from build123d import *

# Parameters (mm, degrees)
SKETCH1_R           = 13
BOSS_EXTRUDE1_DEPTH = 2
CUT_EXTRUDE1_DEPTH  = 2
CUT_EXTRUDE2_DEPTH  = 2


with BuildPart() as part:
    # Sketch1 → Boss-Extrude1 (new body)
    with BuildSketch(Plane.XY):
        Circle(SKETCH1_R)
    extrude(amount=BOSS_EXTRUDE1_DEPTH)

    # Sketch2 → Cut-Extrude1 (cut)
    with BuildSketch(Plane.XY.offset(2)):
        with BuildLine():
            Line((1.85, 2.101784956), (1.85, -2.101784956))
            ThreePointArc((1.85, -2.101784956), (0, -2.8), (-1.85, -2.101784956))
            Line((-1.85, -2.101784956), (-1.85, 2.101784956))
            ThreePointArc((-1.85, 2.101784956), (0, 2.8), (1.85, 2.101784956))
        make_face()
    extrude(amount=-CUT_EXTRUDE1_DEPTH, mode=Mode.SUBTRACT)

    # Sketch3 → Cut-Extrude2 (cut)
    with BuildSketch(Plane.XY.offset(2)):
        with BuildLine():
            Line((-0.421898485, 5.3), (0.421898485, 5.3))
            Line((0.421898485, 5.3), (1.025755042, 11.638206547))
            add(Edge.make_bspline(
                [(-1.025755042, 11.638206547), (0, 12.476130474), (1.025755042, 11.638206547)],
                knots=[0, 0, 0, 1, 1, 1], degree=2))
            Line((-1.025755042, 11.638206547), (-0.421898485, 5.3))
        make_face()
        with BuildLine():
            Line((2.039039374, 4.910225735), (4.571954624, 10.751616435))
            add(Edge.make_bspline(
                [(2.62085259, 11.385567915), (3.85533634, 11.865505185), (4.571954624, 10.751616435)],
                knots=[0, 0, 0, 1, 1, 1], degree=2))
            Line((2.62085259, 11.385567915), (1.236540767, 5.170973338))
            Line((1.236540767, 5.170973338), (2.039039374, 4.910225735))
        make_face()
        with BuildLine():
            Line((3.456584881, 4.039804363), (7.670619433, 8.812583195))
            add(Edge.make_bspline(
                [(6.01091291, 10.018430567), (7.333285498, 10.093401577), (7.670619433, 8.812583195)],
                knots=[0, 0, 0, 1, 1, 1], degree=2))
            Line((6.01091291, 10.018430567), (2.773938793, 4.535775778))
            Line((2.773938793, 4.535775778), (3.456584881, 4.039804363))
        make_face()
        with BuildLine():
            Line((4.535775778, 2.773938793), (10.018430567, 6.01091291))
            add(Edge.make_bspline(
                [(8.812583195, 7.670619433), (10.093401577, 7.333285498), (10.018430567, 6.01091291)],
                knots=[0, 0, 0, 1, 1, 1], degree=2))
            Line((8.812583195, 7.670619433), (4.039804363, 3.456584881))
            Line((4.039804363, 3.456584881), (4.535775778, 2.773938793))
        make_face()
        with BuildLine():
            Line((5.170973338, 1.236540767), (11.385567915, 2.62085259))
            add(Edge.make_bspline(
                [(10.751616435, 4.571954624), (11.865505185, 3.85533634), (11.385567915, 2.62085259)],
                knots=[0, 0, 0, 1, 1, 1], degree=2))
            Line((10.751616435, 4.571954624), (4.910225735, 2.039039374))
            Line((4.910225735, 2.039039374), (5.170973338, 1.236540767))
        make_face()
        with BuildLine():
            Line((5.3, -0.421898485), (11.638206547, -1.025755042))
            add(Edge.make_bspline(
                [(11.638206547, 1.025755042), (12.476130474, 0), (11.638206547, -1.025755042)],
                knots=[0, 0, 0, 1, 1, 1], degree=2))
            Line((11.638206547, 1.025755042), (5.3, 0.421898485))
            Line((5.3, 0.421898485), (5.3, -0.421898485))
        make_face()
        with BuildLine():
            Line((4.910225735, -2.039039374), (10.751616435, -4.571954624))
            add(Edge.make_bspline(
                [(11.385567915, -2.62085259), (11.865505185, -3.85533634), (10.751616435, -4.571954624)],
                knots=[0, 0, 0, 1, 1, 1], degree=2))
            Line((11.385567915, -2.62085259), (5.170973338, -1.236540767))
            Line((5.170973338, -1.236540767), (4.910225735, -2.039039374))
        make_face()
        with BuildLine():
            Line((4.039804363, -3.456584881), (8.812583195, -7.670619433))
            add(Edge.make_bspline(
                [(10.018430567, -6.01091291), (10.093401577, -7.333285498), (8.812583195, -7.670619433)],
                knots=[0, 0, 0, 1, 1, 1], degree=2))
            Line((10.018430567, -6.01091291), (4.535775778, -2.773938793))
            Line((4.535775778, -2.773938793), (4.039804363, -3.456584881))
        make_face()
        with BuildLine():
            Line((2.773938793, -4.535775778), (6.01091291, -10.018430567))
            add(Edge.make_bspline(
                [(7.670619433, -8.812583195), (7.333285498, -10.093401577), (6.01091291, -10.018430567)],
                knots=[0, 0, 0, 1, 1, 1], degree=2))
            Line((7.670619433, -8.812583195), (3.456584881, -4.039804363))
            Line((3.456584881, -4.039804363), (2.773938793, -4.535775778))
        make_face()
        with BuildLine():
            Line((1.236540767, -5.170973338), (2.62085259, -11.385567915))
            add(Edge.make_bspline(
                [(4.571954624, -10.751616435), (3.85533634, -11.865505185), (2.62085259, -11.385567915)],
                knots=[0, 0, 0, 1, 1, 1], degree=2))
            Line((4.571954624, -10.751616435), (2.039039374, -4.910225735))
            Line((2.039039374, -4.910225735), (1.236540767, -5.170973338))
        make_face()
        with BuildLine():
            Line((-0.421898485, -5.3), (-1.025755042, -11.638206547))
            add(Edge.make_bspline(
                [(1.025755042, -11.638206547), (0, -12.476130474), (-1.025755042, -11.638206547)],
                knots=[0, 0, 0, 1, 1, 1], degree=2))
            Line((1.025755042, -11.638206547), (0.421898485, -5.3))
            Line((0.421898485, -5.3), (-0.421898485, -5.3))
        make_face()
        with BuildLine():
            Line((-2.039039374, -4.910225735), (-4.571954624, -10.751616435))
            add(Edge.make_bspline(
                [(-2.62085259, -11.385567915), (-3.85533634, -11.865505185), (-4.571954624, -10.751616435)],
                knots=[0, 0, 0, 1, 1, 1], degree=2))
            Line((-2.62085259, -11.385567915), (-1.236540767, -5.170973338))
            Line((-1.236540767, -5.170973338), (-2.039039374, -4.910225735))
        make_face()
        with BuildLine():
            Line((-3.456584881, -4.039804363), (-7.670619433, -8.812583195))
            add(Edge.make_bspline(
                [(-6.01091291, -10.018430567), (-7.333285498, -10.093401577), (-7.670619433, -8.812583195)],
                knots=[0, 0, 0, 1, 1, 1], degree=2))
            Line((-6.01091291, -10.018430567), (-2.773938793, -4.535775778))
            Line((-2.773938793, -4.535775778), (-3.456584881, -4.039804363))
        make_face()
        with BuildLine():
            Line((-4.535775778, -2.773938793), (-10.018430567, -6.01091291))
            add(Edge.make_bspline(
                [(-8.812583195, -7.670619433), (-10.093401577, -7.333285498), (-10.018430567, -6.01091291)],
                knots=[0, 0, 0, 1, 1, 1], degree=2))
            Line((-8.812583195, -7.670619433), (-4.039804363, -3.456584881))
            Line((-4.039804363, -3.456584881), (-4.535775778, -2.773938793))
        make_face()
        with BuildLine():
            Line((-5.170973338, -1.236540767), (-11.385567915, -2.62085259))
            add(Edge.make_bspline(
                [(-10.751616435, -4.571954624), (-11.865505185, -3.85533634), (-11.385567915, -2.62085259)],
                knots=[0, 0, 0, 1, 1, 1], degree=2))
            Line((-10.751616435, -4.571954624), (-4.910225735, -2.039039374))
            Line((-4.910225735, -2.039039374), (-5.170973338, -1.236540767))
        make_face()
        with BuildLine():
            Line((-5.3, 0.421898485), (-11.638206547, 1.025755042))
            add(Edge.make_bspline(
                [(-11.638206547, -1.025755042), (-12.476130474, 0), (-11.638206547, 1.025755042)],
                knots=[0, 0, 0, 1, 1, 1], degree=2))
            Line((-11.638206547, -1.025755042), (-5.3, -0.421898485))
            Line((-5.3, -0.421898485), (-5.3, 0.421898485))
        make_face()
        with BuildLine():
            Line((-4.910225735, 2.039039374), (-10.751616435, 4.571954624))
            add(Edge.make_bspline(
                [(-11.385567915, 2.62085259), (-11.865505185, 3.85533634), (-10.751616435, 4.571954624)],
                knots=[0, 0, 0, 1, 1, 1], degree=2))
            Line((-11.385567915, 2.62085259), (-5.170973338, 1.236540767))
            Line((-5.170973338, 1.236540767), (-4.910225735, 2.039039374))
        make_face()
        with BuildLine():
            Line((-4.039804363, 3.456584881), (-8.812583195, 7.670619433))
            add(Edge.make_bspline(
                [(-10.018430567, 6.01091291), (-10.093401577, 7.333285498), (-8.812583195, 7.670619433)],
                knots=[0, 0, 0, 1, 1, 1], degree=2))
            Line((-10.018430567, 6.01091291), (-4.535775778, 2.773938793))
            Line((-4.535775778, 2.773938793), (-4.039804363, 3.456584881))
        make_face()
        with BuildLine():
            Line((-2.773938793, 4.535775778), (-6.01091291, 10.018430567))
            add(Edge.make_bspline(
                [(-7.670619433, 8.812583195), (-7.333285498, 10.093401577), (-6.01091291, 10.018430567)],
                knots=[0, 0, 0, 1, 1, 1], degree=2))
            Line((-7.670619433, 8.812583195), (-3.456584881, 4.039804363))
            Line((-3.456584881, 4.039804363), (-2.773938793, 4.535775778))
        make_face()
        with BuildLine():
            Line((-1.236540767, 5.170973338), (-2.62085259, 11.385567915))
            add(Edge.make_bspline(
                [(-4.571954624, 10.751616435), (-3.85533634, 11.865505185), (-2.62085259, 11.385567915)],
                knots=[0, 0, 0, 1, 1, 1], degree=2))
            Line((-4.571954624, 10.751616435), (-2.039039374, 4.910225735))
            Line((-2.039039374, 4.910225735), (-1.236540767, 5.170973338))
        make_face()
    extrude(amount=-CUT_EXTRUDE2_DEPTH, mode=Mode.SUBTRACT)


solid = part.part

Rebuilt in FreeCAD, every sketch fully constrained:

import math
import FreeCAD as App
import Part
import Sketcher
from FreeCAD import Vector

doc = App.newDocument("Part")
body = doc.addObject("PartDesign::Body", "Body")

sketch1 = body.newObject("Sketcher::SketchObject", "Sketch")
sketch1.AttachmentSupport = (doc.getObject("XY_Plane"), [""])
sketch1.MapMode = "FlatFace"
sketch1.addGeometry(Part.Circle(Vector(0, 0, 0), Vector(0, 0, 1), 13), False)
sketch1.addConstraint(Sketcher.Constraint("Coincident", 0, 3, -1, 1))
sketch1.addConstraint(Sketcher.Constraint("Diameter", 0, 26.0))
pad1 = body.newObject("PartDesign::Pad", "Pad")
pad1.Profile = sketch1
pad1.Length = 2

sketch2 = body.newObject("Sketcher::SketchObject", "Sketch001")
sketch2.AttachmentSupport = (doc.getObject("XY_Plane"), [""])
sketch2.MapMode = "FlatFace"
sketch2.AttachmentOffset = App.Placement(Vector(0, 0, 2), App.Rotation())
sketch2.addGeometry(Part.LineSegment(Vector(1.85, -2.101785, 0), Vector(1.85, 2.101785, 0)), False)
sketch2.addGeometry(Part.ArcOfCircle(Part.Circle(Vector(0, 0, 0), Vector(0, 0, 1), 2.8), math.radians(48.645629), math.radians(131.354371)), False)
sketch2.addGeometry(Part.LineSegment(Vector(-1.85, 2.101785, 0), Vector(-1.85, -2.101785, 0)), False)
sketch2.addGeometry(Part.ArcOfCircle(Part.Circle(Vector(0, 0, 0), Vector(0, 0, 1), 2.8), math.radians(-131.354371), math.radians(-48.645629)), False)
sketch2.addConstraint(Sketcher.Constraint("Coincident", 0, 2, 1, 1))
sketch2.addConstraint(Sketcher.Constraint("Coincident", 1, 2, 2, 1))
sketch2.addConstraint(Sketcher.Constraint("Coincident", 2, 2, 3, 1))
sketch2.addConstraint(Sketcher.Constraint("Coincident", 3, 2, 0, 1))
sketch2.addConstraint(Sketcher.Constraint("Vertical", 0))
sketch2.addConstraint(Sketcher.Constraint("Vertical", 2))
sketch2.addConstraint(Sketcher.Constraint("Coincident", 1, 3, -1, 1))
sketch2.addConstraint(Sketcher.Constraint("Coincident", 3, 3, -1, 1))
sketch2.addConstraint(Sketcher.Constraint("Equal", 1, 3))
sketch2.addConstraint(Sketcher.Constraint("Horizontal", 0, 2, 1, 2))
sketch2.addConstraint(Sketcher.Constraint("Radius", 1, 2.8))
sketch2.addConstraint(Sketcher.Constraint("DistanceX", 1, 2, 0, 2, 3.7))
pocket1 = body.newObject("PartDesign::Pocket", "Pocket")
pocket1.Profile = sketch2
pocket1.Length = 2

sketch3 = body.newObject("Sketcher::SketchObject", "Sketch002")
sketch3.AttachmentSupport = (doc.getObject("XY_Plane"), [""])
sketch3.MapMode = "FlatFace"
sketch3.AttachmentOffset = App.Placement(Vector(0, 0, 2), App.Rotation())
sketch3.addGeometry(Part.LineSegment(Vector(-0.421898, 5.3, 0), Vector(0.421898, 5.3, 0)), False)
sketch3.addGeometry(Part.LineSegment(Vector(0.421898, 5.3, 0), Vector(1.025755, 11.638207, 0)), False)
sketch3.addGeometry(Part.BSplineCurve([Vector(-1.025755, 11.638207, 0), Vector(0, 12.47613, 0), Vector(1.025755, 11.638207, 0)], [3, 3], [0, 1], False, 2, [1, 1, 1], False), False)
sketch3.addGeometry(Part.LineSegment(Vector(-1.025755, 11.638207, 0), Vector(-0.421898, 5.3, 0)), False)
sketch3.addGeometry(Part.LineSegment(Vector(2.039039, 4.910226, 0), Vector(4.571955, 10.751616, 0)), False)
sketch3.addGeometry(Part.BSplineCurve([Vector(2.620853, 11.385568, 0), Vector(3.855336, 11.865505, 0), Vector(4.571955, 10.751616, 0)], [3, 3], [0, 1], False, 2, [1, 1, 1], False), False)
sketch3.addGeometry(Part.LineSegment(Vector(2.620853, 11.385568, 0), Vector(1.236541, 5.170973, 0)), False)
sketch3.addGeometry(Part.LineSegment(Vector(1.236541, 5.170973, 0), Vector(2.039039, 4.910226, 0)), False)
sketch3.addGeometry(Part.LineSegment(Vector(3.456585, 4.039804, 0), Vector(7.670619, 8.812583, 0)), False)
sketch3.addGeometry(Part.BSplineCurve([Vector(6.010913, 10.018431, 0), Vector(7.333285, 10.093402, 0), Vector(7.670619, 8.812583, 0)], [3, 3], [0, 1], False, 2, [1, 1, 1], False), False)
sketch3.addGeometry(Part.LineSegment(Vector(6.010913, 10.018431, 0), Vector(2.773939, 4.535776, 0)), False)
sketch3.addGeometry(Part.LineSegment(Vector(2.773939, 4.535776, 0), Vector(3.456585, 4.039804, 0)), False)
sketch3.addGeometry(Part.LineSegment(Vector(4.535776, 2.773939, 0), Vector(10.018431, 6.010913, 0)), False)
sketch3.addGeometry(Part.BSplineCurve([Vector(8.812583, 7.670619, 0), Vector(10.093402, 7.333285, 0), Vector(10.018431, 6.010913, 0)], [3, 3], [0, 1], False, 2, [1, 1, 1], False), False)
sketch3.addGeometry(Part.LineSegment(Vector(8.812583, 7.670619, 0), Vector(4.039804, 3.456585, 0)), False)
sketch3.addGeometry(Part.LineSegment(Vector(4.039804, 3.456585, 0), Vector(4.535776, 2.773939, 0)), False)
sketch3.addGeometry(Part.LineSegment(Vector(5.170973, 1.236541, 0), Vector(11.385568, 2.620853, 0)), False)
sketch3.addGeometry(Part.BSplineCurve([Vector(10.751616, 4.571955, 0), Vector(11.865505, 3.855336, 0), Vector(11.385568, 2.620853, 0)], [3, 3], [0, 1], False, 2, [1, 1, 1], False), False)
sketch3.addGeometry(Part.LineSegment(Vector(10.751616, 4.571955, 0), Vector(4.910226, 2.039039, 0)), False)
sketch3.addGeometry(Part.LineSegment(Vector(4.910226, 2.039039, 0), Vector(5.170973, 1.236541, 0)), False)
sketch3.addGeometry(Part.LineSegment(Vector(5.3, -0.421898, 0), Vector(11.638207, -1.025755, 0)), False)
sketch3.addGeometry(Part.BSplineCurve([Vector(11.638207, 1.025755, 0), Vector(12.47613, 0, 0), Vector(11.638207, -1.025755, 0)], [3, 3], [0, 1], False, 2, [1, 1, 1], False), False)
sketch3.addGeometry(Part.LineSegment(Vector(11.638207, 1.025755, 0), Vector(5.3, 0.421898, 0)), False)
sketch3.addGeometry(Part.LineSegment(Vector(5.3, 0.421898, 0), Vector(5.3, -0.421898, 0)), False)
sketch3.addGeometry(Part.LineSegment(Vector(4.910226, -2.039039, 0), Vector(10.751616, -4.571955, 0)), False)
sketch3.addGeometry(Part.BSplineCurve([Vector(11.385568, -2.620853, 0), Vector(11.865505, -3.855336, 0), Vector(10.751616, -4.571955, 0)], [3, 3], [0, 1], False, 2, [1, 1, 1], False), False)
sketch3.addGeometry(Part.LineSegment(Vector(11.385568, -2.620853, 0), Vector(5.170973, -1.236541, 0)), False)
sketch3.addGeometry(Part.LineSegment(Vector(5.170973, -1.236541, 0), Vector(4.910226, -2.039039, 0)), False)
sketch3.addGeometry(Part.LineSegment(Vector(4.039804, -3.456585, 0), Vector(8.812583, -7.670619, 0)), False)
sketch3.addGeometry(Part.BSplineCurve([Vector(10.018431, -6.010913, 0), Vector(10.093402, -7.333285, 0), Vector(8.812583, -7.670619, 0)], [3, 3], [0, 1], False, 2, [1, 1, 1], False), False)
sketch3.addGeometry(Part.LineSegment(Vector(10.018431, -6.010913, 0), Vector(4.535776, -2.773939, 0)), False)
sketch3.addGeometry(Part.LineSegment(Vector(4.535776, -2.773939, 0), Vector(4.039804, -3.456585, 0)), False)
sketch3.addGeometry(Part.LineSegment(Vector(2.773939, -4.535776, 0), Vector(6.010913, -10.018431, 0)), False)
sketch3.addGeometry(Part.BSplineCurve([Vector(7.670619, -8.812583, 0), Vector(7.333285, -10.093402, 0), Vector(6.010913, -10.018431, 0)], [3, 3], [0, 1], False, 2, [1, 1, 1], False), False)
sketch3.addGeometry(Part.LineSegment(Vector(7.670619, -8.812583, 0), Vector(3.456585, -4.039804, 0)), False)
sketch3.addGeometry(Part.LineSegment(Vector(3.456585, -4.039804, 0), Vector(2.773939, -4.535776, 0)), False)
sketch3.addGeometry(Part.LineSegment(Vector(1.236541, -5.170973, 0), Vector(2.620853, -11.385568, 0)), False)
sketch3.addGeometry(Part.BSplineCurve([Vector(4.571955, -10.751616, 0), Vector(3.855336, -11.865505, 0), Vector(2.620853, -11.385568, 0)], [3, 3], [0, 1], False, 2, [1, 1, 1], False), False)
sketch3.addGeometry(Part.LineSegment(Vector(4.571955, -10.751616, 0), Vector(2.039039, -4.910226, 0)), False)
sketch3.addGeometry(Part.LineSegment(Vector(2.039039, -4.910226, 0), Vector(1.236541, -5.170973, 0)), False)
sketch3.addGeometry(Part.LineSegment(Vector(-0.421898, -5.3, 0), Vector(-1.025755, -11.638207, 0)), False)
sketch3.addGeometry(Part.BSplineCurve([Vector(1.025755, -11.638207, 0), Vector(0, -12.47613, 0), Vector(-1.025755, -11.638207, 0)], [3, 3], [0, 1], False, 2, [1, 1, 1], False), False)
sketch3.addGeometry(Part.LineSegment(Vector(1.025755, -11.638207, 0), Vector(0.421898, -5.3, 0)), False)
sketch3.addGeometry(Part.LineSegment(Vector(0.421898, -5.3, 0), Vector(-0.421898, -5.3, 0)), False)
sketch3.addGeometry(Part.LineSegment(Vector(-2.039039, -4.910226, 0), Vector(-4.571955, -10.751616, 0)), False)
sketch3.addGeometry(Part.BSplineCurve([Vector(-2.620853, -11.385568, 0), Vector(-3.855336, -11.865505, 0), Vector(-4.571955, -10.751616, 0)], [3, 3], [0, 1], False, 2, [1, 1, 1], False), False)
sketch3.addGeometry(Part.LineSegment(Vector(-2.620853, -11.385568, 0), Vector(-1.236541, -5.170973, 0)), False)
sketch3.addGeometry(Part.LineSegment(Vector(-1.236541, -5.170973, 0), Vector(-2.039039, -4.910226, 0)), False)
sketch3.addGeometry(Part.LineSegment(Vector(-3.456585, -4.039804, 0), Vector(-7.670619, -8.812583, 0)), False)
sketch3.addGeometry(Part.BSplineCurve([Vector(-6.010913, -10.018431, 0), Vector(-7.333285, -10.093402, 0), Vector(-7.670619, -8.812583, 0)], [3, 3], [0, 1], False, 2, [1, 1, 1], False), False)
sketch3.addGeometry(Part.LineSegment(Vector(-6.010913, -10.018431, 0), Vector(-2.773939, -4.535776, 0)), False)
sketch3.addGeometry(Part.LineSegment(Vector(-2.773939, -4.535776, 0), Vector(-3.456585, -4.039804, 0)), False)
sketch3.addGeometry(Part.LineSegment(Vector(-4.535776, -2.773939, 0), Vector(-10.018431, -6.010913, 0)), False)
sketch3.addGeometry(Part.BSplineCurve([Vector(-8.812583, -7.670619, 0), Vector(-10.093402, -7.333285, 0), Vector(-10.018431, -6.010913, 0)], [3, 3], [0, 1], False, 2, [1, 1, 1], False), False)
sketch3.addGeometry(Part.LineSegment(Vector(-8.812583, -7.670619, 0), Vector(-4.039804, -3.456585, 0)), False)
sketch3.addGeometry(Part.LineSegment(Vector(-4.039804, -3.456585, 0), Vector(-4.535776, -2.773939, 0)), False)
sketch3.addGeometry(Part.LineSegment(Vector(-5.170973, -1.236541, 0), Vector(-11.385568, -2.620853, 0)), False)
sketch3.addGeometry(Part.BSplineCurve([Vector(-10.751616, -4.571955, 0), Vector(-11.865505, -3.855336, 0), Vector(-11.385568, -2.620853, 0)], [3, 3], [0, 1], False, 2, [1, 1, 1], False), False)
sketch3.addGeometry(Part.LineSegment(Vector(-10.751616, -4.571955, 0), Vector(-4.910226, -2.039039, 0)), False)
sketch3.addGeometry(Part.LineSegment(Vector(-4.910226, -2.039039, 0), Vector(-5.170973, -1.236541, 0)), False)
sketch3.addGeometry(Part.LineSegment(Vector(-5.3, 0.421898, 0), Vector(-11.638207, 1.025755, 0)), False)
sketch3.addGeometry(Part.BSplineCurve([Vector(-11.638207, -1.025755, 0), Vector(-12.47613, 0, 0), Vector(-11.638207, 1.025755, 0)], [3, 3], [0, 1], False, 2, [1, 1, 1], False), False)
sketch3.addGeometry(Part.LineSegment(Vector(-11.638207, -1.025755, 0), Vector(-5.3, -0.421898, 0)), False)
sketch3.addGeometry(Part.LineSegment(Vector(-5.3, -0.421898, 0), Vector(-5.3, 0.421898, 0)), False)
sketch3.addGeometry(Part.LineSegment(Vector(-4.910226, 2.039039, 0), Vector(-10.751616, 4.571955, 0)), False)
sketch3.addGeometry(Part.BSplineCurve([Vector(-11.385568, 2.620853, 0), Vector(-11.865505, 3.855336, 0), Vector(-10.751616, 4.571955, 0)], [3, 3], [0, 1], False, 2, [1, 1, 1], False), False)
sketch3.addGeometry(Part.LineSegment(Vector(-11.385568, 2.620853, 0), Vector(-5.170973, 1.236541, 0)), False)
sketch3.addGeometry(Part.LineSegment(Vector(-5.170973, 1.236541, 0), Vector(-4.910226, 2.039039, 0)), False)
sketch3.addGeometry(Part.LineSegment(Vector(-4.039804, 3.456585, 0), Vector(-8.812583, 7.670619, 0)), False)
sketch3.addGeometry(Part.BSplineCurve([Vector(-10.018431, 6.010913, 0), Vector(-10.093402, 7.333285, 0), Vector(-8.812583, 7.670619, 0)], [3, 3], [0, 1], False, 2, [1, 1, 1], False), False)
sketch3.addGeometry(Part.LineSegment(Vector(-10.018431, 6.010913, 0), Vector(-4.535776, 2.773939, 0)), False)
sketch3.addGeometry(Part.LineSegment(Vector(-4.535776, 2.773939, 0), Vector(-4.039804, 3.456585, 0)), False)
sketch3.addGeometry(Part.LineSegment(Vector(-2.773939, 4.535776, 0), Vector(-6.010913, 10.018431, 0)), False)
sketch3.addGeometry(Part.BSplineCurve([Vector(-7.670619, 8.812583, 0), Vector(-7.333285, 10.093402, 0), Vector(-6.010913, 10.018431, 0)], [3, 3], [0, 1], False, 2, [1, 1, 1], False), False)
sketch3.addGeometry(Part.LineSegment(Vector(-7.670619, 8.812583, 0), Vector(-3.456585, 4.039804, 0)), False)
sketch3.addGeometry(Part.LineSegment(Vector(-3.456585, 4.039804, 0), Vector(-2.773939, 4.535776, 0)), False)
sketch3.addGeometry(Part.LineSegment(Vector(-1.236541, 5.170973, 0), Vector(-2.620853, 11.385568, 0)), False)
sketch3.addGeometry(Part.BSplineCurve([Vector(-4.571955, 10.751616, 0), Vector(-3.855336, 11.865505, 0), Vector(-2.620853, 11.385568, 0)], [3, 3], [0, 1], False, 2, [1, 1, 1], False), False)
sketch3.addGeometry(Part.LineSegment(Vector(-4.571955, 10.751616, 0), Vector(-2.039039, 4.910226, 0)), False)
sketch3.addGeometry(Part.LineSegment(Vector(-2.039039, 4.910226, 0), Vector(-1.236541, 5.170973, 0)), False)
sketch3.addConstraint(Sketcher.Constraint("Block", 2))
sketch3.addConstraint(Sketcher.Constraint("Block", 5))
sketch3.addConstraint(Sketcher.Constraint("Block", 9))
sketch3.addConstraint(Sketcher.Constraint("Block", 13))
sketch3.addConstraint(Sketcher.Constraint("Block", 17))
sketch3.addConstraint(Sketcher.Constraint("Block", 21))
sketch3.addConstraint(Sketcher.Constraint("Block", 25))
sketch3.addConstraint(Sketcher.Constraint("Block", 29))
sketch3.addConstraint(Sketcher.Constraint("Block", 33))
sketch3.addConstraint(Sketcher.Constraint("Block", 37))
sketch3.addConstraint(Sketcher.Constraint("Block", 41))
sketch3.addConstraint(Sketcher.Constraint("Block", 45))
sketch3.addConstraint(Sketcher.Constraint("Block", 49))
sketch3.addConstraint(Sketcher.Constraint("Block", 53))
sketch3.addConstraint(Sketcher.Constraint("Block", 57))
sketch3.addConstraint(Sketcher.Constraint("Block", 61))
sketch3.addConstraint(Sketcher.Constraint("Block", 65))
sketch3.addConstraint(Sketcher.Constraint("Block", 69))
sketch3.addConstraint(Sketcher.Constraint("Block", 73))
sketch3.addConstraint(Sketcher.Constraint("Block", 77))
sketch3.addConstraint(Sketcher.Constraint("Coincident", 0, 2, 1, 1))
sketch3.addConstraint(Sketcher.Constraint("Coincident", 1, 2, 2, 2))
sketch3.addConstraint(Sketcher.Constraint("Coincident", 2, 1, 3, 1))
sketch3.addConstraint(Sketcher.Constraint("Coincident", 3, 2, 0, 1))
sketch3.addConstraint(Sketcher.Constraint("Coincident", 4, 2, 5, 2))
sketch3.addConstraint(Sketcher.Constraint("Coincident", 5, 1, 6, 1))
sketch3.addConstraint(Sketcher.Constraint("Coincident", 6, 2, 7, 1))
sketch3.addConstraint(Sketcher.Constraint("Coincident", 7, 2, 4, 1))
sketch3.addConstraint(Sketcher.Constraint("Coincident", 8, 2, 9, 2))
sketch3.addConstraint(Sketcher.Constraint("Coincident", 9, 1, 10, 1))
sketch3.addConstraint(Sketcher.Constraint("Coincident", 10, 2, 11, 1))
sketch3.addConstraint(Sketcher.Constraint("Coincident", 11, 2, 8, 1))
sketch3.addConstraint(Sketcher.Constraint("Coincident", 12, 2, 13, 2))
sketch3.addConstraint(Sketcher.Constraint("Coincident", 13, 1, 14, 1))
sketch3.addConstraint(Sketcher.Constraint("Coincident", 14, 2, 15, 1))
sketch3.addConstraint(Sketcher.Constraint("Coincident", 15, 2, 12, 1))
sketch3.addConstraint(Sketcher.Constraint("Coincident", 16, 2, 17, 2))
sketch3.addConstraint(Sketcher.Constraint("Coincident", 17, 1, 18, 1))
sketch3.addConstraint(Sketcher.Constraint("Coincident", 18, 2, 19, 1))
sketch3.addConstraint(Sketcher.Constraint("Coincident", 19, 2, 16, 1))
sketch3.addConstraint(Sketcher.Constraint("Coincident", 20, 2, 21, 2))
sketch3.addConstraint(Sketcher.Constraint("Coincident", 21, 1, 22, 1))
sketch3.addConstraint(Sketcher.Constraint("Coincident", 22, 2, 23, 1))
sketch3.addConstraint(Sketcher.Constraint("Coincident", 23, 2, 20, 1))
sketch3.addConstraint(Sketcher.Constraint("Coincident", 24, 2, 25, 2))
sketch3.addConstraint(Sketcher.Constraint("Coincident", 25, 1, 26, 1))
sketch3.addConstraint(Sketcher.Constraint("Coincident", 26, 2, 27, 1))
sketch3.addConstraint(Sketcher.Constraint("Coincident", 27, 2, 24, 1))
sketch3.addConstraint(Sketcher.Constraint("Coincident", 28, 2, 29, 2))
sketch3.addConstraint(Sketcher.Constraint("Coincident", 29, 1, 30, 1))
sketch3.addConstraint(Sketcher.Constraint("Coincident", 30, 2, 31, 1))
sketch3.addConstraint(Sketcher.Constraint("Coincident", 31, 2, 28, 1))
sketch3.addConstraint(Sketcher.Constraint("Coincident", 32, 2, 33, 2))
sketch3.addConstraint(Sketcher.Constraint("Coincident", 33, 1, 34, 1))
sketch3.addConstraint(Sketcher.Constraint("Coincident", 34, 2, 35, 1))
sketch3.addConstraint(Sketcher.Constraint("Coincident", 35, 2, 32, 1))
sketch3.addConstraint(Sketcher.Constraint("Coincident", 36, 2, 37, 2))
sketch3.addConstraint(Sketcher.Constraint("Coincident", 37, 1, 38, 1))
sketch3.addConstraint(Sketcher.Constraint("Coincident", 38, 2, 39, 1))
sketch3.addConstraint(Sketcher.Constraint("Coincident", 39, 2, 36, 1))
sketch3.addConstraint(Sketcher.Constraint("Coincident", 40, 2, 41, 2))
sketch3.addConstraint(Sketcher.Constraint("Coincident", 41, 1, 42, 1))
sketch3.addConstraint(Sketcher.Constraint("Coincident", 42, 2, 43, 1))
sketch3.addConstraint(Sketcher.Constraint("Coincident", 43, 2, 40, 1))
sketch3.addConstraint(Sketcher.Constraint("Coincident", 44, 2, 45, 2))
sketch3.addConstraint(Sketcher.Constraint("Coincident", 45, 1, 46, 1))
sketch3.addConstraint(Sketcher.Constraint("Coincident", 46, 2, 47, 1))
sketch3.addConstraint(Sketcher.Constraint("Coincident", 47, 2, 44, 1))
sketch3.addConstraint(Sketcher.Constraint("Coincident", 48, 2, 49, 2))
sketch3.addConstraint(Sketcher.Constraint("Coincident", 49, 1, 50, 1))
sketch3.addConstraint(Sketcher.Constraint("Coincident", 50, 2, 51, 1))
sketch3.addConstraint(Sketcher.Constraint("Coincident", 51, 2, 48, 1))
sketch3.addConstraint(Sketcher.Constraint("Coincident", 52, 2, 53, 2))
sketch3.addConstraint(Sketcher.Constraint("Coincident", 53, 1, 54, 1))
sketch3.addConstraint(Sketcher.Constraint("Coincident", 54, 2, 55, 1))
sketch3.addConstraint(Sketcher.Constraint("Coincident", 55, 2, 52, 1))
sketch3.addConstraint(Sketcher.Constraint("Coincident", 56, 2, 57, 2))
sketch3.addConstraint(Sketcher.Constraint("Coincident", 57, 1, 58, 1))
sketch3.addConstraint(Sketcher.Constraint("Coincident", 58, 2, 59, 1))
sketch3.addConstraint(Sketcher.Constraint("Coincident", 59, 2, 56, 1))
sketch3.addConstraint(Sketcher.Constraint("Coincident", 60, 2, 61, 2))
sketch3.addConstraint(Sketcher.Constraint("Coincident", 61, 1, 62, 1))
sketch3.addConstraint(Sketcher.Constraint("Coincident", 62, 2, 63, 1))
sketch3.addConstraint(Sketcher.Constraint("Coincident", 63, 2, 60, 1))
sketch3.addConstraint(Sketcher.Constraint("Coincident", 64, 2, 65, 2))
sketch3.addConstraint(Sketcher.Constraint("Coincident", 65, 1, 66, 1))
sketch3.addConstraint(Sketcher.Constraint("Coincident", 66, 2, 67, 1))
sketch3.addConstraint(Sketcher.Constraint("Coincident", 67, 2, 64, 1))
sketch3.addConstraint(Sketcher.Constraint("Coincident", 68, 2, 69, 2))
sketch3.addConstraint(Sketcher.Constraint("Coincident", 69, 1, 70, 1))
sketch3.addConstraint(Sketcher.Constraint("Coincident", 70, 2, 71, 1))
sketch3.addConstraint(Sketcher.Constraint("Coincident", 71, 2, 68, 1))
sketch3.addConstraint(Sketcher.Constraint("Coincident", 72, 2, 73, 2))
sketch3.addConstraint(Sketcher.Constraint("Coincident", 73, 1, 74, 1))
sketch3.addConstraint(Sketcher.Constraint("Coincident", 74, 2, 75, 1))
sketch3.addConstraint(Sketcher.Constraint("Coincident", 75, 2, 72, 1))
sketch3.addConstraint(Sketcher.Constraint("Coincident", 76, 2, 77, 2))
sketch3.addConstraint(Sketcher.Constraint("Coincident", 77, 1, 78, 1))
sketch3.addConstraint(Sketcher.Constraint("Coincident", 78, 2, 79, 1))
sketch3.addConstraint(Sketcher.Constraint("Coincident", 79, 2, 76, 1))
sketch3.addConstraint(Sketcher.Constraint("Horizontal", 0))
sketch3.addConstraint(Sketcher.Constraint("Vertical", 23))
sketch3.addConstraint(Sketcher.Constraint("Horizontal", 43))
sketch3.addConstraint(Sketcher.Constraint("Vertical", 63))
sketch3.addConstraint(Sketcher.Constraint("DistanceY", -1, 1, 0, 2, 5.3))
sketch3.addConstraint(Sketcher.Constraint("DistanceX", -1, 1, 22, 2, 5.3))
sketch3.addConstraint(Sketcher.Constraint("DistanceY", 42, 2, -1, 1, 5.3))
sketch3.addConstraint(Sketcher.Constraint("DistanceX", 62, 2, -1, 1, 5.3))
sketch3.addConstraint(Sketcher.Constraint("DistanceX", -1, 1, 0, 2, 0.421898))
sketch3.addConstraint(Sketcher.Constraint("DistanceX", 3, 2, -1, 1, 0.421898))
sketch3.addConstraint(Sketcher.Constraint("DistanceY", -1, 1, 22, 2, 0.421898))
sketch3.addConstraint(Sketcher.Constraint("DistanceY", 23, 2, -1, 1, 0.421898))
sketch3.addConstraint(Sketcher.Constraint("DistanceX", -1, 1, 42, 2, 0.421898))
sketch3.addConstraint(Sketcher.Constraint("DistanceX", 43, 2, -1, 1, 0.421898))
sketch3.addConstraint(Sketcher.Constraint("DistanceY", 62, 2, -1, 1, 0.421898))
sketch3.addConstraint(Sketcher.Constraint("DistanceY", -1, 1, 63, 2, 0.421898))
sketch3.addConstraint(Sketcher.Constraint("DistanceX", 6, 2, 7, 2, 0.802499))
sketch3.addConstraint(Sketcher.Constraint("DistanceX", 7, 2, 10, 2, 0.734899))
sketch3.addConstraint(Sketcher.Constraint("DistanceY", 18, 2, 15, 2, 0.734899))
sketch3.addConstraint(Sketcher.Constraint("DistanceY", 19, 2, 18, 2, 0.802499))
sketch3.addConstraint(Sketcher.Constraint("DistanceY", 27, 2, 26, 2, 0.802499))
sketch3.addConstraint(Sketcher.Constraint("DistanceY", 30, 2, 27, 2, 0.734899))
sketch3.addConstraint(Sketcher.Constraint("DistanceX", 38, 2, 35, 2, 0.734899))
sketch3.addConstraint(Sketcher.Constraint("DistanceX", 39, 2, 38, 2, 0.802499))
sketch3.addConstraint(Sketcher.Constraint("DistanceX", 47, 2, 46, 2, 0.802499))
sketch3.addConstraint(Sketcher.Constraint("DistanceX", 50, 2, 47, 2, 0.734899))
sketch3.addConstraint(Sketcher.Constraint("DistanceY", 55, 2, 58, 2, 0.734899))
sketch3.addConstraint(Sketcher.Constraint("DistanceY", 58, 2, 59, 2, 0.802499))
sketch3.addConstraint(Sketcher.Constraint("DistanceY", 66, 2, 67, 2, 0.802499))
sketch3.addConstraint(Sketcher.Constraint("DistanceY", 67, 2, 70, 2, 0.734899))
sketch3.addConstraint(Sketcher.Constraint("DistanceX", 75, 2, 78, 2, 0.734899))
sketch3.addConstraint(Sketcher.Constraint("DistanceX", 78, 2, 79, 2, 0.802499))
sketch3.addConstraint(Sketcher.Constraint("DistanceX", -1, 1, 6, 2, 1.236541))
sketch3.addConstraint(Sketcher.Constraint("DistanceY", -1, 1, 15, 2, 2.773939))
sketch3.addConstraint(Sketcher.Constraint("DistanceY", 26, 2, -1, 1, 1.236541))
sketch3.addConstraint(Sketcher.Constraint("DistanceX", -1, 1, 35, 2, 2.773939))
sketch3.addConstraint(Sketcher.Constraint("DistanceX", 46, 2, -1, 1, 1.236541))
sketch3.addConstraint(Sketcher.Constraint("DistanceY", 55, 2, -1, 1, 2.773939))
sketch3.addConstraint(Sketcher.Constraint("DistanceY", -1, 1, 66, 2, 1.236541))
sketch3.addConstraint(Sketcher.Constraint("DistanceX", 75, 2, -1, 1, 2.773939))
sketch3.addConstraint(Sketcher.Constraint("DistanceY", 7, 2, 4, 2, 5.841391))
sketch3.addConstraint(Sketcher.Constraint("DistanceY", 6, 2, 8, 2, 3.64161))
sketch3.addConstraint(Sketcher.Constraint("DistanceY", 10, 2, 7, 2, 0.37445))
sketch3.addConstraint(Sketcher.Constraint("DistanceY", 11, 2, 10, 2, 0.495971))
sketch3.addConstraint(Sketcher.Constraint("DistanceX", 11, 2, 14, 2, 0.583219))
sketch3.addConstraint(Sketcher.Constraint("DistanceY", 14, 2, 11, 2, 0.583219))
sketch3.addConstraint(Sketcher.Constraint("DistanceX", 14, 2, 15, 2, 0.495971))
sketch3.addConstraint(Sketcher.Constraint("DistanceX", 15, 2, 18, 2, 0.37445))
sketch3.addConstraint(Sketcher.Constraint("DistanceX", 14, 2, 19, 2, 1.131169))
sketch3.addConstraint(Sketcher.Constraint("DistanceX", 18, 2, 20, 2, 6.727981))
sketch3.addConstraint(Sketcher.Constraint("DistanceX", 26, 2, 28, 2, 3.64161))
sketch3.addConstraint(Sketcher.Constraint("DistanceX", 30, 2, 27, 2, 0.37445))
sketch3.addConstraint(Sketcher.Constraint("DistanceX", 31, 2, 30, 2, 0.495971))
sketch3.addConstraint(Sketcher.Constraint("DistanceX", 31, 2, 26, 2, 1.131169))
sketch3.addConstraint(Sketcher.Constraint("DistanceX", 34, 2, 31, 2, 0.583219))
sketch3.addConstraint(Sketcher.Constraint("DistanceY", 34, 2, 31, 2, 0.583219))
sketch3.addConstraint(Sketcher.Constraint("DistanceY", 35, 2, 34, 2, 0.495971))
sketch3.addConstraint(Sketcher.Constraint("DistanceY", 38, 2, 35, 2, 0.37445))
sketch3.addConstraint(Sketcher.Constraint("DistanceY", 39, 2, 34, 2, 1.131169))
sketch3.addConstraint(Sketcher.Constraint("DistanceY", 40, 2, 38, 2, 6.727981))
sketch3.addConstraint(Sketcher.Constraint("DistanceY", 48, 2, 46, 2, 3.64161))
sketch3.addConstraint(Sketcher.Constraint("DistanceY", 47, 2, 50, 2, 0.37445))
sketch3.addConstraint(Sketcher.Constraint("DistanceY", 50, 2, 51, 2, 0.495971))
sketch3.addConstraint(Sketcher.Constraint("DistanceY", 46, 2, 51, 2, 1.131169))
sketch3.addConstraint(Sketcher.Constraint("DistanceX", 54, 2, 51, 2, 0.583219))
sketch3.addConstraint(Sketcher.Constraint("DistanceY", 51, 2, 54, 2, 0.583219))
sketch3.addConstraint(Sketcher.Constraint("DistanceX", 55, 2, 54, 2, 0.495971))
sketch3.addConstraint(Sketcher.Constraint("DistanceX", 58, 2, 55, 2, 0.37445))
sketch3.addConstraint(Sketcher.Constraint("DistanceX", 59, 2, 54, 2, 1.131169))
sketch3.addConstraint(Sketcher.Constraint("DistanceX", 60, 2, 58, 2, 6.727981))
sketch3.addConstraint(Sketcher.Constraint("DistanceX", 68, 2, 66, 2, 3.64161))
sketch3.addConstraint(Sketcher.Constraint("DistanceX", 67, 2, 70, 2, 0.37445))
sketch3.addConstraint(Sketcher.Constraint("DistanceX", 70, 2, 71, 2, 0.495971))
sketch3.addConstraint(Sketcher.Constraint("DistanceX", 66, 2, 71, 2, 1.131169))
sketch3.addConstraint(Sketcher.Constraint("DistanceX", 71, 2, 74, 2, 0.583219))
sketch3.addConstraint(Sketcher.Constraint("DistanceY", 71, 2, 74, 2, 0.583219))
sketch3.addConstraint(Sketcher.Constraint("DistanceY", 74, 2, 75, 2, 0.495971))
sketch3.addConstraint(Sketcher.Constraint("DistanceY", 75, 2, 78, 2, 0.37445))
sketch3.addConstraint(Sketcher.Constraint("Distance", 68, 6.366907))
sketch3.addConstraint(Sketcher.Constraint("Distance", 76, 6.366907))
pocket2 = body.newObject("PartDesign::Pocket", "Pocket001")
pocket2.Profile = sketch3
pocket2.Length = 2

doc.recompute()
